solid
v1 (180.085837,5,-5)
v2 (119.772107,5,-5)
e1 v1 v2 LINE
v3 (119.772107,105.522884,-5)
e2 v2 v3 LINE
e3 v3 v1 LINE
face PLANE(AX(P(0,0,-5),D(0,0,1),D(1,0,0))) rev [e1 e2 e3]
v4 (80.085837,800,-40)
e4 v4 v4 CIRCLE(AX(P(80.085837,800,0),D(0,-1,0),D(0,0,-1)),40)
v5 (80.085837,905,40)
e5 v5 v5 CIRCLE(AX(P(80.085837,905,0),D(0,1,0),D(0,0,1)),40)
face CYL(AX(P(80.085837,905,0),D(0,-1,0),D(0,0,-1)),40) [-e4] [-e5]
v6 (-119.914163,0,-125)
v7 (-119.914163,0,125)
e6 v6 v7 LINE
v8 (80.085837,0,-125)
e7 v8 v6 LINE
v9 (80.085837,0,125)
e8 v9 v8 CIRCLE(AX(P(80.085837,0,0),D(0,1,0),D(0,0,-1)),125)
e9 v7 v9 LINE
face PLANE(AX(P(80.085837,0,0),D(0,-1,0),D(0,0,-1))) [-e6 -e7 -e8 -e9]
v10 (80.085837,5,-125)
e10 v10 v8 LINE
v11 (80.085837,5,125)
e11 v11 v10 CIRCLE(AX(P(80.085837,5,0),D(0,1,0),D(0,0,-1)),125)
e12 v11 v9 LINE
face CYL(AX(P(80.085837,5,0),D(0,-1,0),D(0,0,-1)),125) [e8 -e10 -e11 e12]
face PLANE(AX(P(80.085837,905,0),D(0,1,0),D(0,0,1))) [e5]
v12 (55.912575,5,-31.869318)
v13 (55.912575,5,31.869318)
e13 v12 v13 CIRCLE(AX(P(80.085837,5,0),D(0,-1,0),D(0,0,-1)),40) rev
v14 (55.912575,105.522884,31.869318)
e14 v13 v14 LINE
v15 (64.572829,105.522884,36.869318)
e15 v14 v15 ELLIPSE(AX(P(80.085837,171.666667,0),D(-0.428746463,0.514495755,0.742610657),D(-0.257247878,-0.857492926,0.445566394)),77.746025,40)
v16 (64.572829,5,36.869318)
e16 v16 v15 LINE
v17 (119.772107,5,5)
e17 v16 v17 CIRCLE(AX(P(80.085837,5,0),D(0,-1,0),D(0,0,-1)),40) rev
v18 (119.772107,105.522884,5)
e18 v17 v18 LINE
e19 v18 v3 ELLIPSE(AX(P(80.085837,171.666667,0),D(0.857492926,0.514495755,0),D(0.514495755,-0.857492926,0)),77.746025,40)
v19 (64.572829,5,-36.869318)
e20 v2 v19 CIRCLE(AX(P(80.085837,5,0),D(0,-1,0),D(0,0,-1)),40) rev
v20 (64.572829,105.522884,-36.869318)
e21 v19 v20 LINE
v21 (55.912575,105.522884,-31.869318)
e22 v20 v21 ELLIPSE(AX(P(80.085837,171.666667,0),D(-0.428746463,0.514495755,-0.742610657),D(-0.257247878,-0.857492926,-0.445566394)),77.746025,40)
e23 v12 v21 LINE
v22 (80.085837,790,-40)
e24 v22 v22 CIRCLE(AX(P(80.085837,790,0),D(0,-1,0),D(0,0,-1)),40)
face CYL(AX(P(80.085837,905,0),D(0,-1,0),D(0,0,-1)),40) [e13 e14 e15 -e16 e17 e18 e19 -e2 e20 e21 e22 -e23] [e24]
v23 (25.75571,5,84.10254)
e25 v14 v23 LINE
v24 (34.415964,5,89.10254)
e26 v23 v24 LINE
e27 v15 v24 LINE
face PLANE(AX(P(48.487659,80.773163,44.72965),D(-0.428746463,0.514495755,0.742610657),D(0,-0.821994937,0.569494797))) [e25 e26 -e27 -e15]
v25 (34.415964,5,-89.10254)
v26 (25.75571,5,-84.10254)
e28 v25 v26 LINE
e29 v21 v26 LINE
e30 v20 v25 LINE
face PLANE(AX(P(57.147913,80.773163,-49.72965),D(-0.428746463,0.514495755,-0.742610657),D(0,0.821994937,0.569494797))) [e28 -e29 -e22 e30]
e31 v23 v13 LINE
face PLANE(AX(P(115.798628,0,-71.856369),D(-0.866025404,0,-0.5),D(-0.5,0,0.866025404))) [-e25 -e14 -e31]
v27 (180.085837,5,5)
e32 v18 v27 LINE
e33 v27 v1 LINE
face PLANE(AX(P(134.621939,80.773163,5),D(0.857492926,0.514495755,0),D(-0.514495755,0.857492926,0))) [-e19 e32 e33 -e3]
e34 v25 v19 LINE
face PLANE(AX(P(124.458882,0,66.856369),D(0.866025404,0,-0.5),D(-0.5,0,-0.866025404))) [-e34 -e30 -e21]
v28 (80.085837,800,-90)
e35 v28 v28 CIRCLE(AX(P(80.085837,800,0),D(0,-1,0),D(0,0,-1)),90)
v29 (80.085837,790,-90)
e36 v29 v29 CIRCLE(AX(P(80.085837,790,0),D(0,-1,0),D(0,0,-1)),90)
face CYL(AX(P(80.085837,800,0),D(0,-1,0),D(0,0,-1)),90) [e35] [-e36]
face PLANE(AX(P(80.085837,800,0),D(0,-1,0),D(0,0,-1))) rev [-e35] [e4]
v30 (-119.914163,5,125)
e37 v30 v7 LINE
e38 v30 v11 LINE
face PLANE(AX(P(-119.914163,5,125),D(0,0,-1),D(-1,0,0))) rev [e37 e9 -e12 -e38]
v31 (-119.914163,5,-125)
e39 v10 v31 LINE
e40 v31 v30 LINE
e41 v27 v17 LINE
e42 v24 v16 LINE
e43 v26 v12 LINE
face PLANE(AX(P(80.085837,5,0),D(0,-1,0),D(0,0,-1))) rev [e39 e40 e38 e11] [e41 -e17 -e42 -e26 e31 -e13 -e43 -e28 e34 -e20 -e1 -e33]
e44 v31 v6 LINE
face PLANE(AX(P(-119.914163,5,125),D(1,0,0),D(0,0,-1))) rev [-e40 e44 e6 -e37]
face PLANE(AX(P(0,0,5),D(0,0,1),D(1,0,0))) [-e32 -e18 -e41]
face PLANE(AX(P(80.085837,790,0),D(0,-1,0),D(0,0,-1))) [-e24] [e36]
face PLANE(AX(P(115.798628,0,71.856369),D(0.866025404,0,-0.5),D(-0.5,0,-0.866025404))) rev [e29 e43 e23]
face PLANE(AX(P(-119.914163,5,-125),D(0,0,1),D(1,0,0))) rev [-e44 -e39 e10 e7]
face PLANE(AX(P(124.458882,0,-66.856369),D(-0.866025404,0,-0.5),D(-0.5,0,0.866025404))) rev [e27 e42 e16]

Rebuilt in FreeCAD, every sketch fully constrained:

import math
import FreeCAD as App
import Part
import Sketcher
from FreeCAD import Vector
Q = App.Units.Quantity


def add_polygon(sketch, points):
    """Adds a closed chain of lines whose ends are joined by coincident constraints."""
    first, n = sketch.GeometryCount, len(points)
    for a, b in zip(points, points[1:] + points[:1]):
        sketch.addGeometry(Part.LineSegment(App.Vector(*a, 0), App.Vector(*b, 0)), False)
    for i in range(n):
        sketch.addConstraint(Sketcher.Constraint("Coincident", first + i, 2, first + (i + 1) % n, 1))

doc = App.newDocument("Part")
body = doc.addObject("PartDesign::Body", "Body")

# Sketch on XZ plane
sketch1 = body.newObject("Sketcher::SketchObject", "Sketch")
sketch1.AttachmentSupport = (doc.getObject("XZ_Plane"), [""])
sketch1.MapMode = "FlatFace"
sketch1.addGeometry([
    Part.LineSegment(Vector(-119.914163, -125, 0), Vector(-119.914163, 125, 0)),
    Part.LineSegment(Vector(-119.914163, 125, 0), Vector(80.085837, 125, 0)),
    Part.ArcOfCircle(Part.Circle(Vector(80.085837, 0, 0), Vector(0, 0, 1), 125), math.radians(-90), math.radians(90)),
    Part.LineSegment(Vector(80.085837, -125, 0), Vector(-119.914163, -125, 0)),
], False)
sketch1.addConstraint([
    Sketcher.Constraint("Coincident", 0, 2, 1, 1),
    Sketcher.Constraint("Tangent", 1, 2, 2, 2),
    Sketcher.Constraint("Tangent", 2, 1, 3, 1),
    Sketcher.Constraint("Coincident", 3, 2, 0, 1),
    Sketcher.Constraint("Vertical", 0),
    Sketcher.Constraint("Horizontal", 1),
    Sketcher.Constraint("Horizontal", 3),
    Sketcher.Constraint("PointOnObject", 2, 3, -1),
    Sketcher.Constraint("Radius", 2, Q("125 mm")),
    Sketcher.Constraint("DistanceX", 1, 1, 1, 2, Q("200 mm")),
    Sketcher.Constraint("DistanceX", -1, 1, 2, 3, Q("80.085837 mm")),
])
pad1 = body.newObject("PartDesign::Pad", "Pad")
pad1.Profile = sketch1
pad1.Length = 5
pad1.Reversed = True

# Sketch on XZ plane
sketch2 = body.newObject("Sketcher::SketchObject", "Sketch001")
sketch2.AttachmentSupport = (doc.getObject("XZ_Plane"), [""])
sketch2.MapMode = "FlatFace"
sketch2.AttachmentOffset = App.Placement(Vector(0, 0, -5), App.Rotation())
sketch2.addGeometry(Part.Circle(Vector(80.085837, 0, 0), Vector(0, 0, 1), 40), False)
sketch2.addConstraint([
    Sketcher.Constraint("PointOnObject", 0, 3, -1),
    Sketcher.Constraint("Diameter", 0, Q("80 mm")),
    Sketcher.Constraint("DistanceX", -1, 1, 0, 3, Q("80.085837 mm")),
])
pad2 = body.newObject("PartDesign::Pad", "Pad001")
pad2.Profile = sketch2
pad2.Length = 900
pad2.Reversed = True

# Sketch on XZ plane
sketch3 = body.newObject("Sketcher::SketchObject", "Sketch002")
sketch3.AttachmentSupport = (doc.getObject("XZ_Plane"), [""])
sketch3.MapMode = "FlatFace"
sketch3.AttachmentOffset = App.Placement(Vector(0, 0, -790), App.Rotation())
sketch3.addGeometry(Part.Circle(Vector(80.085837, 0, 0), Vector(0, 0, 1), 90), False)
sketch3.addConstraint([
    Sketcher.Constraint("PointOnObject", 0, 3, -1),
    Sketcher.Constraint("Diameter", 0, Q("180 mm")),
    Sketcher.Constraint("DistanceX", -1, 1, 0, 3, Q("80.085837 mm")),
])
pad3 = body.newObject("PartDesign::Pad", "Pad002")
pad3.Profile = sketch3
pad3.Length = 10
pad3.Reversed = True

# Sketch on XY plane
sketch4 = body.newObject("Sketcher::SketchObject", "Sketch003")
sketch4.AttachmentSupport = (doc.getObject("XY_Plane"), [""])
sketch4.MapMode = "FlatFace"
add_polygon(sketch4, [(108.365396, 5), (180.085837, 5), (120.085837, 105), (108.365396, 124.534068)])  # lines 0-3
sketch4.addConstraint([
    Sketcher.Constraint("Horizontal", 0),
    Sketcher.Constraint("Vertical", 3),
    Sketcher.Constraint("Parallel", 1, 2),
    Sketcher.Constraint("DistanceY", -1, 1, 0, 2, Q("5 mm")),
    Sketcher.Constraint("DistanceY", -1, 1, 1, 2, Q("105 mm")),
    Sketcher.Constraint("DistanceX", 1, 2, 0, 2, Q("60 mm")),
    Sketcher.Constraint("DistanceX", 0, 1, 0, 2, Q("71.720441 mm")),
    Sketcher.Constraint("DistanceX", -1, 1, 0, 2, Q("180.085837 mm")),
])
pad4 = body.newObject("PartDesign::Pad", "Pad003")
pad4.Profile = sketch4
pad4.Length = 10
pad4.Midplane = True
doc.recompute()

datumline = body.newObject("PartDesign::Line", "DatumLine")
datumline.Placement = App.Placement(Vector(80.085837, 0, 0), App.Rotation(Vector(0, 0, 1), Vector(0, 1, 0)))
polarpattern = body.newObject("PartDesign::PolarPattern", "PolarPattern")
polarpattern.Originals = [pad4]
polarpattern.Axis = (datumline, [""])
polarpattern.Angle = 360
polarpattern.Occurrences = 3
body.Tip = polarpattern

doc.recompute()
